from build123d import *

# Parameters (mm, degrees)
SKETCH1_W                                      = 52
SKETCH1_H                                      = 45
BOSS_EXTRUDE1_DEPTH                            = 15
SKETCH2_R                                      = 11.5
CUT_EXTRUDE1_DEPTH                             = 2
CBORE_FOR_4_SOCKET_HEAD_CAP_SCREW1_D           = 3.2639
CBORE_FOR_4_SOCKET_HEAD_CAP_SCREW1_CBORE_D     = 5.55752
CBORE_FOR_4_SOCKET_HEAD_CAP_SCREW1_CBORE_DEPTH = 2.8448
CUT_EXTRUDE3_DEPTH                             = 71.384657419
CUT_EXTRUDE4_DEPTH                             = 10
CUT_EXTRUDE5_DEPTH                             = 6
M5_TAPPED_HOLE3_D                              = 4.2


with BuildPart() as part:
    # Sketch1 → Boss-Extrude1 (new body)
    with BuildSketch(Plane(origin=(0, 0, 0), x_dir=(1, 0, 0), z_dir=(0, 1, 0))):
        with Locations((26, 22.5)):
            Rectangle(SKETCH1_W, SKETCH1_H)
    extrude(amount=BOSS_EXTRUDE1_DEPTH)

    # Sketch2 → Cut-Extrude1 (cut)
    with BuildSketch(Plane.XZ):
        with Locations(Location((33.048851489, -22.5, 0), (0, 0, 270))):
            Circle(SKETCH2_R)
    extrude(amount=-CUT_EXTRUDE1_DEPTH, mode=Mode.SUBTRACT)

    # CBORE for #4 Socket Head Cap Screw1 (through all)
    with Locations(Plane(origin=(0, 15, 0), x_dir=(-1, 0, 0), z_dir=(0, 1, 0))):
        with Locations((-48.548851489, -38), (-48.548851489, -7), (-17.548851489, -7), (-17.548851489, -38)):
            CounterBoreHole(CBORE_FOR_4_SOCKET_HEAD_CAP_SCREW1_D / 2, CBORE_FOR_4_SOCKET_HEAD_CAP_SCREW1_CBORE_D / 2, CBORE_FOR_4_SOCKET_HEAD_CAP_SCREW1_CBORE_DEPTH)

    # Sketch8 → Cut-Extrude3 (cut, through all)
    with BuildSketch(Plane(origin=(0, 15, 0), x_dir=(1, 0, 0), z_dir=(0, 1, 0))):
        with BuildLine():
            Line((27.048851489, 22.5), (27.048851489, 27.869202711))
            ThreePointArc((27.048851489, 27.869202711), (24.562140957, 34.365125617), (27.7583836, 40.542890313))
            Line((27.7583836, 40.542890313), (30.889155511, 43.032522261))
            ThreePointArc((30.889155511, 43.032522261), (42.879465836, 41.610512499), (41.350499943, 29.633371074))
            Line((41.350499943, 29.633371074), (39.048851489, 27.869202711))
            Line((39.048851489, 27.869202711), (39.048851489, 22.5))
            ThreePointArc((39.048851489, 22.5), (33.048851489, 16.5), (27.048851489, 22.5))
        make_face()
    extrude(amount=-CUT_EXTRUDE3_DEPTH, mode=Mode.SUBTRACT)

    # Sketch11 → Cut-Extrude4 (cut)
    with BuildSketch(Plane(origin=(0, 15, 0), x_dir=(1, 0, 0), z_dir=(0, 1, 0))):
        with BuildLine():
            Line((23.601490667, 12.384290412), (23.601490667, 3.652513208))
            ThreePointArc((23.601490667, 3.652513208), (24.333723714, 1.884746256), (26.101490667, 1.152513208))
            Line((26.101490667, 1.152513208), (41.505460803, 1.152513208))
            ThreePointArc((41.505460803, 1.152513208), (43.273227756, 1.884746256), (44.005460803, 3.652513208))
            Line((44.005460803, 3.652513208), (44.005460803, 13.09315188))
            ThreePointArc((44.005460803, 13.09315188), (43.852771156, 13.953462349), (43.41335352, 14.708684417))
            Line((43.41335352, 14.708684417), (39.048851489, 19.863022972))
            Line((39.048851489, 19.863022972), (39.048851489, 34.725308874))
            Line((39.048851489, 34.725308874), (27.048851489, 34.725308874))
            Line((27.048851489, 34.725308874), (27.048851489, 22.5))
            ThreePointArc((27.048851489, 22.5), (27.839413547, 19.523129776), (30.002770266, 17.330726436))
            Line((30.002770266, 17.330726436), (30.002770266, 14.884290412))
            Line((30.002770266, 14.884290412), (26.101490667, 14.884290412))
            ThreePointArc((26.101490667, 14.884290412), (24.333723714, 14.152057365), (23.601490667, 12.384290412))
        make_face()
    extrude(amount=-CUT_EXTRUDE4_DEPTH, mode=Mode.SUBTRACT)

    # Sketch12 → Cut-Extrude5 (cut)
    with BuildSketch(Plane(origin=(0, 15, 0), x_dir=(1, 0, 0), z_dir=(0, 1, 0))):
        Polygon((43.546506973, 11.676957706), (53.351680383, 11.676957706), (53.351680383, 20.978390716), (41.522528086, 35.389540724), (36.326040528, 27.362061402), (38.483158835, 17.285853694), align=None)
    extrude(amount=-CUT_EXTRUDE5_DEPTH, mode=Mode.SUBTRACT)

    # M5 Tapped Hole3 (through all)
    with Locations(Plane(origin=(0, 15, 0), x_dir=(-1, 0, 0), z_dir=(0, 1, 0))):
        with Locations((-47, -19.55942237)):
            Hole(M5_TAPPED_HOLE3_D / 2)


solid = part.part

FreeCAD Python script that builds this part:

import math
import FreeCAD as App
import Part
import Sketcher
from FreeCAD import Vector

doc = App.newDocument("Part")
body = doc.addObject("PartDesign::Body", "Body")

# Sketch on XZ plane
sketch1 = doc.addObject("Sketcher::SketchObject", "Sketch")
body.addObject(sketch1)
sketch1.AttachmentSupport = (doc.XZ_Plane, [""])
sketch1.MapMode = "FlatFace"
sketch1.addGeometry(Part.LineSegment(Vector(0, -45, 0), Vector(0, 0, 0)), False)
sketch1.addGeometry(Part.LineSegment(Vector(0, 0, 0), Vector(52, 0, 0)), False)
sketch1.addGeometry(Part.LineSegment(Vector(52, 0, 0), Vector(52, -45, 0)), False)
sketch1.addGeometry(Part.LineSegment(Vector(52, -45, 0), Vector(0, -45, 0)), False)
sketch1.addConstraint(Sketcher.Constraint("Coincident", 0, 2, 1, 1))
sketch1.addConstraint(Sketcher.Constraint("Coincident", 1, 2, 2, 1))
sketch1.addConstraint(Sketcher.Constraint("Coincident", 2, 2, 3, 1))
sketch1.addConstraint(Sketcher.Constraint("Coincident", 3, 2, 0, 1))
sketch1.addConstraint(Sketcher.Constraint("Vertical", 0))
sketch1.addConstraint(Sketcher.Constraint("Horizontal", 1))
sketch1.addConstraint(Sketcher.Constraint("Vertical", 2))
sketch1.addConstraint(Sketcher.Constraint("Horizontal", 3))
sketch1.addConstraint(Sketcher.Constraint("Coincident", 0, 2, -1, 1))
sketch1.addConstraint(Sketcher.Constraint("DistanceX", 1, 1, 1, 2, 52.0))
sketch1.addConstraint(Sketcher.Constraint("DistanceY", 0, 1, 0, 2, 45.0))
pad1 = doc.addObject("PartDesign::Pad", "Pad")
body.addObject(pad1)
pad1.Profile = sketch1
pad1.Length = 15
pad1.Reversed = True

# Sketch on XZ plane
sketch2 = doc.addObject("Sketcher::SketchObject", "Sketch001")
body.addObject(sketch2)
sketch2.AttachmentSupport = (doc.XZ_Plane, [""])
sketch2.MapMode = "FlatFace"
sketch2.addGeometry(Part.Circle(Vector(33, -22, 0), Vector(0, 0, 1), 12), False)
sketch2.addConstraint(Sketcher.Constraint("Diameter", 0, 23.0))
sketch2.addConstraint(Sketcher.Constraint("DistanceY", 0, 3, -1, 1, 22.5))
sketch2.addConstraint(Sketcher.Constraint("DistanceX", -1, 1, 0, 3, 33.048851))
pocket1 = doc.addObject("PartDesign::Pocket", "Pocket")
body.addObject(pocket1)
pocket1.Profile = sketch2
pocket1.Length = 2

# Sketch on XZ plane
sketch3 = doc.addObject("Sketcher::SketchObject", "Sketch002")
body.addObject(sketch3)
sketch3.AttachmentSupport = (doc.XZ_Plane, [""])
sketch3.MapMode = "FlatFace"
sketch3.AttachmentOffset = App.Placement(Vector(0, 0, -15), App.Rotation())
sketch3.addGeometry(Part.Circle(Vector(48.5, -38, 0), Vector(0, 0, 1), 1.6), False)
sketch3.addGeometry(Part.Circle(Vector(48.5, -7, 0), Vector(0, 0, 1), 1.6), False)
sketch3.addGeometry(Part.Circle(Vector(17.5, -7, 0), Vector(0, 0, 1), 1.6), False)
sketch3.addGeometry(Part.Circle(Vector(17.5, -38, 0), Vector(0, 0, 1), 1.6), False)
sketch3.addConstraint(Sketcher.Constraint("Equal", 0, 1))
sketch3.addConstraint(Sketcher.Constraint("Equal", 1, 2))
sketch3.addConstraint(Sketcher.Constraint("Equal", 2, 3))
sketch3.addConstraint(Sketcher.Constraint("Horizontal", 1, 3, 2, 3))
sketch3.addConstraint(Sketcher.Constraint("Horizontal", 0, 3, 3, 3))
sketch3.addConstraint(Sketcher.Constraint("Vertical", 0, 3, 1, 3))
sketch3.addConstraint(Sketcher.Constraint("Vertical", 2, 3, 3, 3))
sketch3.addConstraint(Sketcher.Constraint("DistanceY", 0, 3, -1, 1, 38.0))
sketch3.addConstraint(Sketcher.Constraint("DistanceY", 1, 3, -1, 1, 7.0))
sketch3.addConstraint(Sketcher.Constraint("DistanceX", 2, 3, 1, 3, 31.0))
sketch3.addConstraint(Sketcher.Constraint("Diameter", 0, 3.2639))
sketch3.addConstraint(Sketcher.Constraint("DistanceX", -1, 1, 0, 3, 48.548851))
doc.recompute()
hole = doc.addObject("PartDesign::Hole", "Hole")
body.addObject(hole)
hole.Profile = sketch3
hole.ThreadType = "None"
hole.Diameter = 3.2639
hole.DepthType = "ThroughAll"
hole.HoleCutType = "Counterbore"
hole.HoleCutDiameter = 5.55752
hole.HoleCutDepth = 2.8448
hole.Reversed = True

# Sketch on XZ plane
sketch4 = doc.addObject("Sketcher::SketchObject", "Sketch003")
body.addObject(sketch4)
sketch4.AttachmentSupport = (doc.XZ_Plane, [""])
sketch4.MapMode = "FlatFace"
sketch4.AttachmentOffset = App.Placement(Vector(0, 0, -15), App.Rotation())
sketch4.addGeometry(Part.LineSegment(Vector(27, -27.9, 0), Vector(27, -22.5, 0)), False)
sketch4.addGeometry(Part.ArcOfCircle(Part.Circle(Vector(33, -22.5, 0), Vector(0, 0, 1), 6), math.radians(0), math.radians(180)), False)
sketch4.addGeometry(Part.LineSegment(Vector(39, -22.5, 0), Vector(39, -27.9, 0)), False)
sketch4.addGeometry(Part.LineSegment(Vector(39, -27.9, 0), Vector(41.4, -29.6, 0)), False)
sketch4.addGeometry(Part.ArcOfCircle(Part.Circle(Vector(36.2, -36.4, 0), Vector(0, 0, 1), 8.5), math.radians(-128), math.radians(53)), False)
sketch4.addGeometry(Part.LineSegment(Vector(30.9, -43, 0), Vector(27.8, -40.5, 0)), False)
sketch4.addGeometry(Part.ArcOfCircle(Part.Circle(Vector(33, -33.9, 0), Vector(0, 0, 1), 8.5), math.radians(135), math.radians(232)), False)
sketch4.addConstraint(Sketcher.Constraint("Tangent", 0, 2, 1, 2))
sketch4.addConstraint(Sketcher.Constraint("Tangent", 1, 1, 2, 1))
sketch4.addConstraint(Sketcher.Constraint("Coincident", 2, 2, 3, 1))
sketch4.addConstraint(Sketcher.Constraint("Tangent", 3, 2, 4, 2))
sketch4.addConstraint(Sketcher.Constraint("Tangent", 4, 1, 5, 1))
sketch4.addConstraint(Sketcher.Constraint("Tangent", 5, 2, 6, 2))
sketch4.addConstraint(Sketcher.Constraint("Coincident", 6, 1, 0, 1))
sketch4.addConstraint(Sketcher.Constraint("Vertical", 0))
sketch4.addConstraint(Sketcher.Constraint("Vertical", 2))
sketch4.addConstraint(Sketcher.Constraint("Equal", 4, 6))
sketch4.addConstraint(Sketcher.Constraint("Horizontal", 2, 2, 6, 1))
sketch4.addConstraint(Sketcher.Constraint("Vertical", 1, 3, 6, 3))
sketch4.addConstraint(Sketcher.Constraint("Radius", 1, 6.0))
sketch4.addConstraint(Sketcher.Constraint("Radius", 4, 8.5))
sketch4.addConstraint(Sketcher.Constraint("Distance", 5, 4.0))
sketch4.addConstraint(Sketcher.Constraint("DistanceY", 1, 3, -1, 1, 22.5))
sketch4.addConstraint(Sketcher.Constraint("DistanceY", 6, 3, -1, 1, 33.89))
sketch4.addConstraint(Sketcher.Constraint("DistanceX", -1, 1, 3, 2, 41.3505))
sketch4.addConstraint(Sketcher.Constraint("Distance", 3, 2.899979))
pocket2 = doc.addObject("PartDesign::Pocket", "Pocket001")
body.addObject(pocket2)
pocket2.Profile = sketch4
pocket2.Type = "ThroughAll"
pocket2.Reversed = True

# Sketch on XZ plane
sketch5 = doc.addObject("Sketcher::SketchObject", "Sketch004")
body.addObject(sketch5)
sketch5.AttachmentSupport = (doc.XZ_Plane, [""])
sketch5.MapMode = "FlatFace"
sketch5.AttachmentOffset = App.Placement(Vector(0, 0, -15), App.Rotation())
sketch5.addGeometry(Part.LineSegment(Vector(23.6, -12.4, 0), Vector(23.6, -3.7, 0)), False)
sketch5.addGeometry(Part.ArcOfCircle(Part.Circle(Vector(26.1, -3.7, 0), Vector(0, 0, 1), 2.5), math.radians(90), math.radians(180)), False)
sketch5.addGeometry(Part.LineSegment(Vector(26.1, -1.2, 0), Vector(41.5, -1.2, 0)), False)
sketch5.addGeometry(Part.ArcOfCircle(Part.Circle(Vector(41.5, -3.7, 0), Vector(0, 0, 1), 2.5), math.radians(0), math.radians(90)), False)
sketch5.addGeometry(Part.LineSegment(Vector(44, -3.7, 0), Vector(44, -13.1, 0)), False)
sketch5.addGeometry(Part.ArcOfCircle(Part.Circle(Vector(41.5, -13.1, 0), Vector(0, 0, 1), 2.5), math.radians(-40), math.radians(0)), False)
sketch5.addGeometry(Part.LineSegment(Vector(43.4, -14.7, 0), Vector(39, -19.9, 0)), False)
sketch5.addGeometry(Part.LineSegment(Vector(39, -19.9, 0), Vector(39, -34.7, 0)), False)
sketch5.addGeometry(Part.LineSegment(Vector(39, -34.7, 0), Vector(27, -34.7, 0)), False)
sketch5.addGeometry(Part.LineSegment(Vector(27, -34.7, 0), Vector(27, -22.5, 0)), False)
sketch5.addGeometry(Part.ArcOfCircle(Part.Circle(Vector(33, -22.5, 0), Vector(0, 0, 1), 6), math.radians(121), math.radians(180)), False)
sketch5.addGeometry(Part.LineSegment(Vector(30, -17.3, 0), Vector(30, -14.9, 0)), False)
sketch5.addGeometry(Part.LineSegment(Vector(30, -14.9, 0), Vector(26.1, -14.9, 0)), False)
sketch5.addGeometry(Part.ArcOfCircle(Part.Circle(Vector(26.1, -12.4, 0), Vector(0, 0, 1), 2.5), math.radians(180), math.radians(270)), False)
sketch5.addConstraint(Sketcher.Constraint("Tangent", 0, 2, 1, 2))
sketch5.addConstraint(Sketcher.Constraint("Tangent", 1, 1, 2, 1))
sketch5.addConstraint(Sketcher.Constraint("Tangent", 2, 2, 3, 2))
sketch5.addConstraint(Sketcher.Constraint("Tangent", 3, 1, 4, 1))
sketch5.addConstraint(Sketcher.Constraint("Tangent", 4, 2, 5, 2))
sketch5.addConstraint(Sketcher.Constraint("Tangent", 5, 1, 6, 1))
sketch5.addConstraint(Sketcher.Constraint("Coincident", 6, 2, 7, 1))
sketch5.addConstraint(Sketcher.Constraint("Coincident", 7, 2, 8, 1))
sketch5.addConstraint(Sketcher.Constraint("Coincident", 8, 2, 9, 1))
sketch5.addConstraint(Sketcher.Constraint("Tangent", 9, 2, 10, 2))
sketch5.addConstraint(Sketcher.Constraint("Coincident", 10, 1, 11, 1))
sketch5.addConstraint(Sketcher.Constraint("Coincident", 11, 2, 12, 1))
sketch5.addConstraint(Sketcher.Constraint("Tangent", 12, 2, 13, 2))
sketch5.addConstraint(Sketcher.Constraint("Tangent", 13, 1, 0, 1))
sketch5.addConstraint(Sketcher.Constraint("Vertical", 0))
sketch5.addConstraint(Sketcher.Constraint("Horizontal", 2))
sketch5.addConstraint(Sketcher.Constraint("Vertical", 4))
sketch5.addConstraint(Sketcher.Constraint("Vertical", 7))
sketch5.addConstraint(Sketcher.Constraint("Horizontal", 8))
sketch5.addConstraint(Sketcher.Constraint("Vertical", 9))
sketch5.addConstraint(Sketcher.Constraint("Vertical", 11))
sketch5.addConstraint(Sketcher.Constraint("Horizontal", 12))
sketch5.addConstraint(Sketcher.Constraint("Equal", 1, 3))
sketch5.addConstraint(Sketcher.Constraint("Equal", 3, 5))
sketch5.addConstraint(Sketcher.Constraint("Equal", 5, 13))
sketch5.addConstraint(Sketcher.Constraint("Radius", 10, 6.0))
sketch5.addConstraint(Sketcher.Constraint("Radius", 1, 2.5))
sketch5.addConstraint(Sketcher.Constraint("DistanceX", 8, 2, 8, 1, 12.0))
sketch5.addConstraint(Sketcher.Constraint("DistanceY", 10, 3, -1, 1, 22.5))
sketch5.addConstraint(Sketcher.Constraint("DistanceX", 2, 1, 2, 2, 15.40397))
sketch5.addConstraint(Sketcher.Constraint("DistanceX", 12, 2, 12, 1, 3.90128))
sketch5.addConstraint(Sketcher.Constraint("DistanceY", 4, 2, 4, 1, 9.440639))
sketch5.addConstraint(Sketcher.Constraint("DistanceY", 9, 1, 9, 2, 12.225309))
sketch5.addConstraint(Sketcher.Constraint("Distance", 6, 6.753968))
sketch5.addConstraint(Sketcher.Constraint("DistanceY", 0, 1, 0, 2, 8.731777))
sketch5.addConstraint(Sketcher.Constraint("DistanceY", 7, 2, 7, 1, 14.862286))
sketch5.addConstraint(Sketcher.Constraint("DistanceY", 11, 1, 11, 2, 2.446436))
sketch5.addConstraint(Sketcher.Constraint("DistanceX", -1, 1, 1, 3, 26.101491))
pocket3 = doc.addObject("PartDesign::Pocket", "Pocket002")
body.addObject(pocket3)
pocket3.Profile = sketch5
pocket3.Length = 10
pocket3.Reversed = True

# Sketch on XZ plane
sketch6 = doc.addObject("Sketcher::SketchObject", "Sketch005")
body.addObject(sketch6)
sketch6.AttachmentSupport = (doc.XZ_Plane, [""])
sketch6.MapMode = "FlatFace"
sketch6.AttachmentOffset = App.Placement(Vector(0, 0, -15), App.Rotation())
sketch6.addGeometry(Part.LineSegment(Vector(44, -12, 0), Vector(53, -12, 0)), False)
sketch6.addGeometry(Part.LineSegment(Vector(53, -12, 0), Vector(53, -21, 0)), False)
sketch6.addGeometry(Part.LineSegment(Vector(53, -21, 0), Vector(42, -35, 0)), False)
sketch6.addGeometry(Part.LineSegment(Vector(42, -35, 0), Vector(36, -27, 0)), False)
sketch6.addGeometry(Part.LineSegment(Vector(36, -27, 0), Vector(38, -17, 0)), False)
sketch6.addGeometry(Part.LineSegment(Vector(38, -17, 0), Vector(44, -12, 0)), False)
sketch6.addConstraint(Sketcher.Constraint("Coincident", 0, 2, 1, 1))
sketch6.addConstraint(Sketcher.Constraint("Coincident", 1, 2, 2, 1))
sketch6.addConstraint(Sketcher.Constraint("Coincident", 2, 2, 3, 1))
sketch6.addConstraint(Sketcher.Constraint("Coincident", 3, 2, 4, 1))
sketch6.addConstraint(Sketcher.Constraint("Coincident", 4, 2, 5, 1))
sketch6.addConstraint(Sketcher.Constraint("Coincident", 5, 2, 0, 1))
sketch6.addConstraint(Sketcher.Constraint("Horizontal", 0))
sketch6.addConstraint(Sketcher.Constraint("Vertical", 1))
sketch6.addConstraint(Sketcher.Constraint("Distance", 3, 9.562631))
sketch6.addConstraint(Sketcher.Constraint("Distance", 4, 10.304519))
sketch6.addConstraint(Sketcher.Constraint("Distance", 5, 7.556269))
sketch6.addConstraint(Sketcher.Constraint("DistanceX", 0, 1, 0, 2, 9.805173))
sketch6.addConstraint(Sketcher.Constraint("DistanceY", 1, 2, 1, 1, 9.301433))
sketch6.addConstraint(Sketcher.Constraint("DistanceX", -1, 1, 0, 2, 53.35168))
sketch6.addConstraint(Sketcher.Constraint("DistanceY", 1, 2, -1, 1, 20.978391))
sketch6.addConstraint(Sketcher.Constraint("DistanceX", -1, 1, 2, 2, 41.522528))
sketch6.addConstraint(Sketcher.Constraint("DistanceY", 2, 2, -1, 1, 35.389541))
sketch6.addConstraint(Sketcher.Constraint("DistanceX", -1, 1, 3, 2, 36.326041))
pocket4 = doc.addObject("PartDesign::Pocket", "Pocket003")
body.addObject(pocket4)
pocket4.Profile = sketch6
pocket4.Length = 6
pocket4.Reversed = True

# Sketch on XZ plane
sketch7 = doc.addObject("Sketcher::SketchObject", "Sketch006")
body.addObject(sketch7)
sketch7.AttachmentSupport = (doc.XZ_Plane, [""])
sketch7.MapMode = "FlatFace"
sketch7.AttachmentOffset = App.Placement(Vector(0, 0, -15), App.Rotation())
sketch7.addGeometry(Part.Circle(Vector(47, -19.6, 0), Vector(0, 0, 1), 2.1), False)
sketch7.addConstraint(Sketcher.Constraint("Diameter", 0, 4.2))
sketch7.addConstraint(Sketcher.Constraint("DistanceX", -1, 1, 0, 3, 47.0))
sketch7.addConstraint(Sketcher.Constraint("DistanceY", 0, 3, -1, 1, 19.559422))
doc.recompute()
hole2 = doc.addObject("PartDesign::Hole", "Hole001")
body.addObject(hole2)
hole2.Profile = sketch7
hole2.ThreadType = "None"
hole2.Diameter = 4.2
hole2.DepthType = "ThroughAll"
hole2.Reversed = True

doc.recompute()
